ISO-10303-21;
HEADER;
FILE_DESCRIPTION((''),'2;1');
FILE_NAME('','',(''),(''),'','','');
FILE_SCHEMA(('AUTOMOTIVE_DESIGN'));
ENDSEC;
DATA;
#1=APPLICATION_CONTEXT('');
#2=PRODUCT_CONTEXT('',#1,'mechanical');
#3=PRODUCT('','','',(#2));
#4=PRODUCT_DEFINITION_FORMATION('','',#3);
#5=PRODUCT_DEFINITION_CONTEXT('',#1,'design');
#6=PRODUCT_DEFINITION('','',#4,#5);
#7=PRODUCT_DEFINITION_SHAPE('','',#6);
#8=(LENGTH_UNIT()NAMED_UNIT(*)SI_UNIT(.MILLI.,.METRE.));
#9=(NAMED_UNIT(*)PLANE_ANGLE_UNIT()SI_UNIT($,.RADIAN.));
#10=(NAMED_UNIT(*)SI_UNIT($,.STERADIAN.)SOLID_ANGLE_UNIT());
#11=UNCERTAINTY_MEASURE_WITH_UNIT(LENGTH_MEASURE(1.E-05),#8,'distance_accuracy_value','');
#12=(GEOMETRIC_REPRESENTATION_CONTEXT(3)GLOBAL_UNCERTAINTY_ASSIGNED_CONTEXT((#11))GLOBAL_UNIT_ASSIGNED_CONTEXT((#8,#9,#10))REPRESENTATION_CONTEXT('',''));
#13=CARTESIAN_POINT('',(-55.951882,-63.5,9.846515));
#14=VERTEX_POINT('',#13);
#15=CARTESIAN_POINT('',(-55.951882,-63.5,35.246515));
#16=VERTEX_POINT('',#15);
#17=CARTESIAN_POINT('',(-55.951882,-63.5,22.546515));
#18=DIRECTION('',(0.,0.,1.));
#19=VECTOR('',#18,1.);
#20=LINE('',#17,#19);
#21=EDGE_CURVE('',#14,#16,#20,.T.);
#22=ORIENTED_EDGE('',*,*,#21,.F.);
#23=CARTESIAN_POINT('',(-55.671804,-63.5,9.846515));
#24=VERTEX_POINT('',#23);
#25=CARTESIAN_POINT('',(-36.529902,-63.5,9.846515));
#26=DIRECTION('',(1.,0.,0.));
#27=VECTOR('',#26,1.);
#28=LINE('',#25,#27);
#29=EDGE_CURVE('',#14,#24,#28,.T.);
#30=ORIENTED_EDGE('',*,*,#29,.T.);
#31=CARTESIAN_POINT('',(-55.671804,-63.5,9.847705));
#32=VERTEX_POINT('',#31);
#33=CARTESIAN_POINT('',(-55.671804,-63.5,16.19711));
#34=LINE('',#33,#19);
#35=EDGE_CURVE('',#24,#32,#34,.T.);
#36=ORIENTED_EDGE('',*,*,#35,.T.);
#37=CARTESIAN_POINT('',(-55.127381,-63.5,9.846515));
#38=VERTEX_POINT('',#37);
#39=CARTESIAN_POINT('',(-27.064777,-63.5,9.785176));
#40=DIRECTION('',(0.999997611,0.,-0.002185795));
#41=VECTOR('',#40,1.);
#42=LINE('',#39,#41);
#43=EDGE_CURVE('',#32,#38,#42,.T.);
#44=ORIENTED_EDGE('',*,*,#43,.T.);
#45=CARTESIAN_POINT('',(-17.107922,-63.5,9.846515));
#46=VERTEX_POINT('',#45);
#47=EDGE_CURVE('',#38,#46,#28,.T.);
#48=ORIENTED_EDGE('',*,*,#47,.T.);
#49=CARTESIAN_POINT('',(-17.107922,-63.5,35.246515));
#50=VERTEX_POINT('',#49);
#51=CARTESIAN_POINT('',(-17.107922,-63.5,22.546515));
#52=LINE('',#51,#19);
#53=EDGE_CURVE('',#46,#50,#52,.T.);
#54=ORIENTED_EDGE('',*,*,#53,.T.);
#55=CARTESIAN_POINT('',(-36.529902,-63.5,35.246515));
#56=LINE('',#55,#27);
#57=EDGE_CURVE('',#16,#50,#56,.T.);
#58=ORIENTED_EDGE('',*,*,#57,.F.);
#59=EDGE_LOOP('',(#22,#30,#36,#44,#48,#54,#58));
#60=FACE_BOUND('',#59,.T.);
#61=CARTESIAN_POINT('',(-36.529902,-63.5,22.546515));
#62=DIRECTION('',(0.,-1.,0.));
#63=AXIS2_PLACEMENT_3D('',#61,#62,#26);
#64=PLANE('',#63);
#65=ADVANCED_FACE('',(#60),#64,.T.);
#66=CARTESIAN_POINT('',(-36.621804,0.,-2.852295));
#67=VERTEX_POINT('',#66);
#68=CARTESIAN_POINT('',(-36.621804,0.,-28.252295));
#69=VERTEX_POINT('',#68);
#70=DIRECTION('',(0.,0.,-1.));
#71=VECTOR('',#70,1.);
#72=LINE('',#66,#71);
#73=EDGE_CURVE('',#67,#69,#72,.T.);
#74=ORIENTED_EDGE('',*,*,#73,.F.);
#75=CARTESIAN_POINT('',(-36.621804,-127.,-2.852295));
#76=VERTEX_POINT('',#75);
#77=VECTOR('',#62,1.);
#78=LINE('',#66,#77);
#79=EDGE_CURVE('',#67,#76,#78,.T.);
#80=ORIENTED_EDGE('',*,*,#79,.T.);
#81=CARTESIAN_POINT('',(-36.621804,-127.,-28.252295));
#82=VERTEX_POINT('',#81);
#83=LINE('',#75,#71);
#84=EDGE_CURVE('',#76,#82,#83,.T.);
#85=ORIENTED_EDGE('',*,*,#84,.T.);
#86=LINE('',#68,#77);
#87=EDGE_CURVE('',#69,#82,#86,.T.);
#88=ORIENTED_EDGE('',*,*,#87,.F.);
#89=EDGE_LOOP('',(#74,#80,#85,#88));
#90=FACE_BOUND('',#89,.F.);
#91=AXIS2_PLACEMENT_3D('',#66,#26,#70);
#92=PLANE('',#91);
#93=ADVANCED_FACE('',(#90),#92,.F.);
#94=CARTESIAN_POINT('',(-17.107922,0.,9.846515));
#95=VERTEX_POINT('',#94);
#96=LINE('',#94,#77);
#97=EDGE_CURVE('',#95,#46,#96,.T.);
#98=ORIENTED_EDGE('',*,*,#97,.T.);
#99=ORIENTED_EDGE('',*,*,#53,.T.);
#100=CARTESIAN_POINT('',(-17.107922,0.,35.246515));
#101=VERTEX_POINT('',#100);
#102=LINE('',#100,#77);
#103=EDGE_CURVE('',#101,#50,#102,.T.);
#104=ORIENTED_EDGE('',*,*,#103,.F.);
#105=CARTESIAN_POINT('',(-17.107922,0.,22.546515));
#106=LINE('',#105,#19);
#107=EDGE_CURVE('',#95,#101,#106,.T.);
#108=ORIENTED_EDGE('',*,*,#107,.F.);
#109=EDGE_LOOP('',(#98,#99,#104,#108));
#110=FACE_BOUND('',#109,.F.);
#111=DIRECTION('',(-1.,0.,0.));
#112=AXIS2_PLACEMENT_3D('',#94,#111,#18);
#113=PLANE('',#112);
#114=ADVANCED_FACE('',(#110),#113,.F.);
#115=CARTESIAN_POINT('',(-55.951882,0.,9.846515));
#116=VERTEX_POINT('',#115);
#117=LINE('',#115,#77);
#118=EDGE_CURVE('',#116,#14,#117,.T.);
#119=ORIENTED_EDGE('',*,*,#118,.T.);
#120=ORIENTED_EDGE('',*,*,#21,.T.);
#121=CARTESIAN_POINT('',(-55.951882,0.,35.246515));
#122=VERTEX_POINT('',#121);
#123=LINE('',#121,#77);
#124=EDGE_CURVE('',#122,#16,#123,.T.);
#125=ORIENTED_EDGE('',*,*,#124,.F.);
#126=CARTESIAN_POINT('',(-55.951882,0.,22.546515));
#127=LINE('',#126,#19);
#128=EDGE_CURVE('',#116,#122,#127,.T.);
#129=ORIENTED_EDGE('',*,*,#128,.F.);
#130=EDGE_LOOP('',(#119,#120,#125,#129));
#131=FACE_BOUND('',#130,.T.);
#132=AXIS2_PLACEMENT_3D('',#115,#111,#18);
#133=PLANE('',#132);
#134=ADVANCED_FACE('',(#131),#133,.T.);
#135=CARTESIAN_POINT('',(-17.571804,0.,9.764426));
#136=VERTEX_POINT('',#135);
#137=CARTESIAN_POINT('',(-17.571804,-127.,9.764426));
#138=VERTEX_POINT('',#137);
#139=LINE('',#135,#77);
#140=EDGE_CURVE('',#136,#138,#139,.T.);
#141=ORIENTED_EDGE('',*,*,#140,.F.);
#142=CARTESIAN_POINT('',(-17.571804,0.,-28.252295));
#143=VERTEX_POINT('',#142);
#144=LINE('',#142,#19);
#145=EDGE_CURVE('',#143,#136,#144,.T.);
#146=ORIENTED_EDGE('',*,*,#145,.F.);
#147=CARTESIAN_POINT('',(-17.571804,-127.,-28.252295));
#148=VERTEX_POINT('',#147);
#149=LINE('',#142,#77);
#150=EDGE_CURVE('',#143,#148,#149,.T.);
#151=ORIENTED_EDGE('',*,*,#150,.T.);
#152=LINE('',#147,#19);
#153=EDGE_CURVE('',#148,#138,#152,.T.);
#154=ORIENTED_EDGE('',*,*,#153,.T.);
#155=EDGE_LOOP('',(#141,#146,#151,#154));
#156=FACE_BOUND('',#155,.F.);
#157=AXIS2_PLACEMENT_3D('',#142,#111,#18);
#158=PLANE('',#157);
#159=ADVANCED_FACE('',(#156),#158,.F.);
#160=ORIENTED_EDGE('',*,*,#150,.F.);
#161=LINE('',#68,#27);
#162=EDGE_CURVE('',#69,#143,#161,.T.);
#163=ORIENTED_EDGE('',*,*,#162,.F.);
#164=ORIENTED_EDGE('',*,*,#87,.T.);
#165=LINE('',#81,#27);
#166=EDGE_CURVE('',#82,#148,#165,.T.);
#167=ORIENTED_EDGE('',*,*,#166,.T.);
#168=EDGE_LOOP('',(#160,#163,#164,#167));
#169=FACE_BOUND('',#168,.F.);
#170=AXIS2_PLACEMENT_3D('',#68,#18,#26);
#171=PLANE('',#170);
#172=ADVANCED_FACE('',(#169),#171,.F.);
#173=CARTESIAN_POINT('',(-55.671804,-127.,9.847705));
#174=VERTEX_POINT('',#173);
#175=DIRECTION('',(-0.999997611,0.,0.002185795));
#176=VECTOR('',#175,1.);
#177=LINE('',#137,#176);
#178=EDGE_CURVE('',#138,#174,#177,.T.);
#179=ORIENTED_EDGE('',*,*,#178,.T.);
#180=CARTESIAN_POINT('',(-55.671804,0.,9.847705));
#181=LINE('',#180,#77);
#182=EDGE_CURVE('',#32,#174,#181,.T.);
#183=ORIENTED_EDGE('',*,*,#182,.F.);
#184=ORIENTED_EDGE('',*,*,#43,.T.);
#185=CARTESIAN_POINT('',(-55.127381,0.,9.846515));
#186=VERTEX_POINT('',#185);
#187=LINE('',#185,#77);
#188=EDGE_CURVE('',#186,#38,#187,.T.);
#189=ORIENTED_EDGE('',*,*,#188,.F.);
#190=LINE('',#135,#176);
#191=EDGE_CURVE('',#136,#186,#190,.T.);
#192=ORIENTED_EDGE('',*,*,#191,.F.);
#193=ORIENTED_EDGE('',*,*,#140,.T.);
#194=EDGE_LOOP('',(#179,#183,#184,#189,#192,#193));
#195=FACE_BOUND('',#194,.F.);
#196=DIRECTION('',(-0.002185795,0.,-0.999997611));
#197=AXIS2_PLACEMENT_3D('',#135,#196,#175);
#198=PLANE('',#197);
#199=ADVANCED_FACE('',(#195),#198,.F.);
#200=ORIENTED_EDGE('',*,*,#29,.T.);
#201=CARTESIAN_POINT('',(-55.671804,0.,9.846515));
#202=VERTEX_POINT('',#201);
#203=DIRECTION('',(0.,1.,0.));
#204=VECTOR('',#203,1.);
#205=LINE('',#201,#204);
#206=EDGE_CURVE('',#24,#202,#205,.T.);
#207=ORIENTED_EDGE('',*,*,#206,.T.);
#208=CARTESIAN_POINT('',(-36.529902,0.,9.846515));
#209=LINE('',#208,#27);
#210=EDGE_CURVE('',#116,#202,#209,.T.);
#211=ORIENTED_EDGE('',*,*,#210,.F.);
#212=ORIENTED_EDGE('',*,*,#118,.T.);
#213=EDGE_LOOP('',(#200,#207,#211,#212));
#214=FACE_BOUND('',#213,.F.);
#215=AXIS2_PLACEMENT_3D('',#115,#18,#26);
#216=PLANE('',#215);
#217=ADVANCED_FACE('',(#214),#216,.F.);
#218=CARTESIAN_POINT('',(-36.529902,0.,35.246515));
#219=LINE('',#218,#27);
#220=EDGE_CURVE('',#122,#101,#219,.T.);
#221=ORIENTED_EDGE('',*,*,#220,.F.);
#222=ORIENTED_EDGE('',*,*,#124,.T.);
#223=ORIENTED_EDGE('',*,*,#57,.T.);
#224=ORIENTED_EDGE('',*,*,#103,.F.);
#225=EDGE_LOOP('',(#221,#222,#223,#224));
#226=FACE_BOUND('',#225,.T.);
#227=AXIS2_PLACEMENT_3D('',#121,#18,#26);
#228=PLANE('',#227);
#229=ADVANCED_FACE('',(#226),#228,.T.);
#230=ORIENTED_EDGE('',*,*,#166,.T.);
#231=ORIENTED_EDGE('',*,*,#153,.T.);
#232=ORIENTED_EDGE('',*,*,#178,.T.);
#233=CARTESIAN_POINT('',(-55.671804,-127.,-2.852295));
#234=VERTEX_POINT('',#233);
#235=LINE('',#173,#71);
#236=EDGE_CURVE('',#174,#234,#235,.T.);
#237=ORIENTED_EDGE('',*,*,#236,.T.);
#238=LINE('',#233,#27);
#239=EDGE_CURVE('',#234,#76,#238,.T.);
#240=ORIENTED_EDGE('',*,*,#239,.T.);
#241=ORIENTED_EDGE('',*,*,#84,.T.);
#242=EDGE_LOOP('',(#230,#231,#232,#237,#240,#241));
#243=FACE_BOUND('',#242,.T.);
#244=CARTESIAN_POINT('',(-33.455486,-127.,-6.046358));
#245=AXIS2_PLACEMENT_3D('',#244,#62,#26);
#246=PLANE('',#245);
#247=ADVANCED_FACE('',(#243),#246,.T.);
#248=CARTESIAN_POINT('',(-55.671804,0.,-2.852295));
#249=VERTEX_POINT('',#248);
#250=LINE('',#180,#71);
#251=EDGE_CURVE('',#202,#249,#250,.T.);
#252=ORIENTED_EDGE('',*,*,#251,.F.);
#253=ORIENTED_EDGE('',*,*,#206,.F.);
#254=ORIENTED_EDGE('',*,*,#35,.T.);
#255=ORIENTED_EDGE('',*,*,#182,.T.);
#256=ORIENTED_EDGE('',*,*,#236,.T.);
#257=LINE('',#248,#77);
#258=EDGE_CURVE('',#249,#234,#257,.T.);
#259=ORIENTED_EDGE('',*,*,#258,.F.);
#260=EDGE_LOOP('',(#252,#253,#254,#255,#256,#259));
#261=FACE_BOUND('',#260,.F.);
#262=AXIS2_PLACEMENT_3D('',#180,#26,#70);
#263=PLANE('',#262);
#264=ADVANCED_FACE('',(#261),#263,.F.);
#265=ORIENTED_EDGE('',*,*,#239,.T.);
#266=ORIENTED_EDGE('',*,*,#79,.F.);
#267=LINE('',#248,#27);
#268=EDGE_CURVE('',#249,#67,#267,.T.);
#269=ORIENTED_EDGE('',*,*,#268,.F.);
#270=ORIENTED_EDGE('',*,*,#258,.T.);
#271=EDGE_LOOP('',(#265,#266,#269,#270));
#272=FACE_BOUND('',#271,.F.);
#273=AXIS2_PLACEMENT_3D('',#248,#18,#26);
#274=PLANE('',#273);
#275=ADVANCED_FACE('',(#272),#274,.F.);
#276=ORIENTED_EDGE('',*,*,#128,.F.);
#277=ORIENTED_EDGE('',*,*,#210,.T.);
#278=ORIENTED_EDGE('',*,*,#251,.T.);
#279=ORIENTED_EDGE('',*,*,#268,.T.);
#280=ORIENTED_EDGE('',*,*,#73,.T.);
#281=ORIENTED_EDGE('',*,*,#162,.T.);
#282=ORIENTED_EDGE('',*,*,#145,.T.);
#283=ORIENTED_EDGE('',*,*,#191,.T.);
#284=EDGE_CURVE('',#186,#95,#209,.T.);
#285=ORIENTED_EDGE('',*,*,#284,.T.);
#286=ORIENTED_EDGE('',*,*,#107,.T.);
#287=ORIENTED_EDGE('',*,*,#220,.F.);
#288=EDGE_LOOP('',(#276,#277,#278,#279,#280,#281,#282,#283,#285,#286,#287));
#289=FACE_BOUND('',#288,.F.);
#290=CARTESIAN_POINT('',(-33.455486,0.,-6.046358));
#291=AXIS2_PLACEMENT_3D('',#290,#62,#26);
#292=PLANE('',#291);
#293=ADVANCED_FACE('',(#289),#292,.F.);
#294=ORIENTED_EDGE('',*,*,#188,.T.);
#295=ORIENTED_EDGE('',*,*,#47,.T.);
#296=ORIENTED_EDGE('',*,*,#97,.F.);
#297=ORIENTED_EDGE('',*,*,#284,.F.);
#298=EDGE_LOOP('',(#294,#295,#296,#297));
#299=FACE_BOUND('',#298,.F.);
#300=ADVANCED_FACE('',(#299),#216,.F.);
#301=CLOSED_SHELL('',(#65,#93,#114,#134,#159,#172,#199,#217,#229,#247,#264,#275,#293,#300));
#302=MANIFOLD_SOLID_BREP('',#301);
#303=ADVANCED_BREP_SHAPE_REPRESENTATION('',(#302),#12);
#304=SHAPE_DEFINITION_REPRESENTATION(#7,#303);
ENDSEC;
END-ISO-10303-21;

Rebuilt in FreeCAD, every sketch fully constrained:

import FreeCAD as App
import Part
import Sketcher
Q = App.Units.Quantity

doc = App.newDocument("Part")
params = doc.addObject("Spreadsheet::Sheet", "Params")
for row, (alias, value) in enumerate([
    ("sketch1_height", "1 in"),
    ("pad1_length", "2.5 in"),
    ("sketch2_height", "1 in"),
    ("sketch2_height2", "0.5 in"),
    ("sketch2_width", "0.75 in"),
    ("pad2_length", "5 in"),
], start=1):
    params.set(f"A{row}", alias)
    params.set(f"B{row}", "=" + value)
    params.setAlias(f"B{row}", alias)

body = doc.addObject("PartDesign::Body", "Body")

# Sketch on XZ plane
sketch1 = body.newObject("Sketcher::SketchObject", "Sketch")
sketch1.AttachmentSupport = (doc.getObject("XZ_Plane"), [""])
sketch1.MapMode = "FlatFace"
sketch1.addGeometry([
    Part.LineSegment(App.Vector(-55.951882, 35.246515, 0), App.Vector(-55.951882, 9.846515, 0)),
    Part.LineSegment(App.Vector(-55.951882, 9.846515, 0), App.Vector(-17.107922, 9.846515, 0)),
    Part.LineSegment(App.Vector(-17.107922, 9.846515, 0), App.Vector(-17.107922, 35.246515, 0)),
    Part.LineSegment(App.Vector(-17.107922, 35.246515, 0), App.Vector(-55.951882, 35.246515, 0)),
], False)
sketch1.addConstraint([
    Sketcher.Constraint("Coincident", 0, 2, 1, 1),
    Sketcher.Constraint("Coincident", 1, 2, 2, 1),
    Sketcher.Constraint("Coincident", 2, 2, 3, 1),
    Sketcher.Constraint("Coincident", 3, 2, 0, 1),
    Sketcher.Constraint("Vertical", 0),
    Sketcher.Constraint("Horizontal", 1),
    Sketcher.Constraint("Vertical", 2),
    Sketcher.Constraint("Horizontal", 3),
    Sketcher.Constraint("DistanceY", 0, 2, 0, 1, Q("1 in")),
    Sketcher.Constraint("DistanceX", 1, 1, 1, 2, Q("38.84396 mm")),
    Sketcher.Constraint("DistanceX", 0, 2, -1, 1, Q("55.951882 mm")),
    Sketcher.Constraint("DistanceY", -1, 1, 0, 2, Q("9.846515 mm")),
])
sketch1.setExpression("Constraints[8]", "Params.sketch1_height")
pad1 = body.newObject("PartDesign::Pad", "Pad")
pad1.Profile = sketch1
pad1.setExpression("Length", "Params.pad1_length")

# Sketch on XZ plane
sketch2 = body.newObject("Sketcher::SketchObject", "Sketch001")
sketch2.AttachmentSupport = (doc.getObject("XZ_Plane"), [""])
sketch2.MapMode = "FlatFace"
sketch2.addGeometry([
    Part.LineSegment(App.Vector(-17.571804, 9.764426, 0), App.Vector(-55.671804, 9.847705, 0)),  # 0
    Part.LineSegment(App.Vector(-55.671804, 9.847705, 0), App.Vector(-55.671804, -2.852295, 0)),  # 1
    Part.LineSegment(App.Vector(-55.671804, -2.852295, 0), App.Vector(-36.621804, -2.852295, 0)),  # 2
    Part.LineSegment(App.Vector(-36.621804, -2.852295, 0), App.Vector(-36.621804, -28.252295, 0)),  # 3
    Part.LineSegment(App.Vector(-36.621804, -28.252295, 0), App.Vector(-17.571804, -28.252295, 0)),  # 4
    Part.LineSegment(App.Vector(-17.571804, -28.252295, 0), App.Vector(-17.571804, 9.764426, 0)),  # 5
], False)
sketch2.addConstraint([
    Sketcher.Constraint("Coincident", 0, 2, 1, 1),
    Sketcher.Constraint("Coincident", 1, 2, 2, 1),
    Sketcher.Constraint("Coincident", 2, 2, 3, 1),
    Sketcher.Constraint("Coincident", 3, 2, 4, 1),
    Sketcher.Constraint("Coincident", 4, 2, 5, 1),
    Sketcher.Constraint("Coincident", 5, 2, 0, 1),
    Sketcher.Constraint("Vertical", 1),
    Sketcher.Constraint("Horizontal", 2),
    Sketcher.Constraint("Vertical", 3),
    Sketcher.Constraint("Horizontal", 4),
    Sketcher.Constraint("Vertical", 5),
    Sketcher.Constraint("Equal", 2, 4),
    Sketcher.Constraint("DistanceY", 3, 2, 3, 1, Q("1 in")),
    Sketcher.Constraint("DistanceY", 1, 2, 1, 1, Q("0.5 in")),
    Sketcher.Constraint("DistanceX", 2, 1, 2, 2, Q("0.75 in")),
    Sketcher.Constraint("DistanceY", 5, 1, 5, 2, Q("38.016721 mm")),
    Sketcher.Constraint("DistanceX", 0, 2, -1, 1, Q("55.671804 mm")),
    Sketcher.Constraint("DistanceY", -1, 1, 0, 2, Q("9.847705 mm")),
])
sketch2.setExpression("Constraints[12]", "Params.sketch2_height")
sketch2.setExpression("Constraints[13]", "Params.sketch2_height2")
sketch2.setExpression("Constraints[14]", "Params.sketch2_width")
pad2 = body.newObject("PartDesign::Pad", "Pad001")
pad2.Profile = sketch2
pad2.setExpression("Length", "Params.pad2_length")

doc.recompute()
